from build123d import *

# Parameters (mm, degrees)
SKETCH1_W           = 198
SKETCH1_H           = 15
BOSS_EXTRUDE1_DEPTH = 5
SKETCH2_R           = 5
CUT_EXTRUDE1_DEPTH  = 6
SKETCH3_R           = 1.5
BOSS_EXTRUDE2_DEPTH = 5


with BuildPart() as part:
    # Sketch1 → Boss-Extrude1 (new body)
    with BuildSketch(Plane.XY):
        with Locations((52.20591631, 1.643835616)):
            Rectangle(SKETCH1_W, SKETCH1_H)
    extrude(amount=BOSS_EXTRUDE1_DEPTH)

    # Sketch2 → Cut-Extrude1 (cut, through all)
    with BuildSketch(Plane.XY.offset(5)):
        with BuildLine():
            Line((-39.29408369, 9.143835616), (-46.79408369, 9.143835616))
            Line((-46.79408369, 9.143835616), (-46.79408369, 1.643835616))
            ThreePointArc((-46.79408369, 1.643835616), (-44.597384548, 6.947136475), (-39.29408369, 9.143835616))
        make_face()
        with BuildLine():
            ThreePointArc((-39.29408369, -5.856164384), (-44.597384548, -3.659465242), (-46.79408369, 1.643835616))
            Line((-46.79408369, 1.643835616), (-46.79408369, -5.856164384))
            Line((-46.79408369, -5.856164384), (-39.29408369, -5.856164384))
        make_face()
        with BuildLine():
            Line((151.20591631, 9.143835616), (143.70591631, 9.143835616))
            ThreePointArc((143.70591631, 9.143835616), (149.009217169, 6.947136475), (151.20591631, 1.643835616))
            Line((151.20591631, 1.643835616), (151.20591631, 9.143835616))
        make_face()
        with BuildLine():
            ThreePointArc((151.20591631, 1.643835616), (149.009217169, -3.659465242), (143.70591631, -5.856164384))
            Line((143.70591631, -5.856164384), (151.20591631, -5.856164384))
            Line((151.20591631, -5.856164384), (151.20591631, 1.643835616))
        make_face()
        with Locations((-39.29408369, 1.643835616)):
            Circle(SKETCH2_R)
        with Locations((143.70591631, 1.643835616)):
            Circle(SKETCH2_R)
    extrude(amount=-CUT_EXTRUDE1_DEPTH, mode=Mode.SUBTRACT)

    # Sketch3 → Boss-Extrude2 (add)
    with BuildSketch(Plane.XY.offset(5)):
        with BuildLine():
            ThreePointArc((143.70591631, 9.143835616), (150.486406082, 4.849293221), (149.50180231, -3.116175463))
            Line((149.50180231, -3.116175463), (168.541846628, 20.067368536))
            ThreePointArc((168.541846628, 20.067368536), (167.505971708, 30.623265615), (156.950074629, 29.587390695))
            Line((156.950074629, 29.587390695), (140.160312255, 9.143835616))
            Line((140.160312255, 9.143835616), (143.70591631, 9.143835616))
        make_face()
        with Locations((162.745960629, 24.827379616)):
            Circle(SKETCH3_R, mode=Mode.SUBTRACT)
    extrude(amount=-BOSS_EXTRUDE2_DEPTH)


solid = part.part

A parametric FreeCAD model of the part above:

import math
import FreeCAD as App
import Part
import Sketcher

V = App.Vector
Q = App.Units.Quantity


def add_polygon(sketch, points):
    """Adds a closed chain of lines whose ends are joined by coincident constraints."""
    first, n = sketch.GeometryCount, len(points)
    for a, b in zip(points, points[1:] + points[:1]):
        sketch.addGeometry(Part.LineSegment(App.Vector(*a, 0), App.Vector(*b, 0)), False)
    for i in range(n):
        sketch.addConstraint(Sketcher.Constraint("Coincident", first + i, 2, first + (i + 1) % n, 1))

doc = App.newDocument("Part")
body = doc.addObject("PartDesign::Body", "Body")

# Sketch on XY plane
sketch1 = body.newObject("Sketcher::SketchObject", "Sketch")
sketch1.AttachmentSupport = (doc.getObject("XY_Plane"), [""])
sketch1.MapMode = "FlatFace"
add_polygon(sketch1, [(-46.794084, 9.143836), (-46.794084, -5.856164), (151.205916, -5.856164), (151.205916, 9.143836)])  # lines 0-3
sketch1.addConstraint([
    Sketcher.Constraint("Vertical", 0),
    Sketcher.Constraint("Horizontal", 1),
    Sketcher.Constraint("Vertical", 2),
    Sketcher.Constraint("Horizontal", 3),
    Sketcher.Constraint("DistanceX", 1, 1, 1, 2, Q("198 mm")),
    Sketcher.Constraint("DistanceY", 0, 2, 0, 1, Q("15 mm")),
    Sketcher.Constraint("DistanceX", 0, 2, -1, 1, Q("46.794084 mm")),
    Sketcher.Constraint("DistanceY", 0, 2, -1, 1, Q("5.856164 mm")),
])
pad1 = body.newObject("PartDesign::Pad", "Pad")
pad1.Profile = sketch1
pad1.Length = 5

# Sketch on XY plane
sketch2 = body.newObject("Sketcher::SketchObject", "Sketch001")
sketch2.AttachmentSupport = (doc.getObject("XY_Plane"), [""])
sketch2.MapMode = "FlatFace"
sketch2.AttachmentOffset = App.Placement(V(0, 0, 5), App.Rotation())
sketch2.addGeometry([
    Part.LineSegment(V(-39.294084, 9.143836, 0), V(-46.794084, 9.143836, 0)),  # 0
    Part.LineSegment(V(-46.794084, 9.143836, 0), V(-46.794084, 1.643836, 0)),  # 1
    Part.ArcOfCircle(Part.Circle(V(-39.294084, 1.643836, 0), V(0, 0, 1), 7.5), math.radians(90), math.radians(180)),  # 2
    Part.ArcOfCircle(Part.Circle(V(-39.294084, 1.643836, 0), V(0, 0, 1), 7.5), math.radians(-180), math.radians(-90)),  # 3
    Part.LineSegment(V(-46.794084, 1.643836, 0), V(-46.794084, -5.856164, 0)),  # 4
    Part.LineSegment(V(-46.794084, -5.856164, 0), V(-39.294084, -5.856164, 0)),  # 5
    Part.LineSegment(V(151.205916, 9.143836, 0), V(143.705916, 9.143836, 0)),  # 6
    Part.ArcOfCircle(Part.Circle(V(143.705916, 1.643836, 0), V(0, 0, 1), 7.5), math.radians(0), math.radians(90)),  # 7
    Part.LineSegment(V(151.205916, 1.643836, 0), V(151.205916, 9.143836, 0)),  # 8
    Part.ArcOfCircle(Part.Circle(V(143.705916, 1.643836, 0), V(0, 0, 1), 7.5), math.radians(-90), math.radians(0)),  # 9
    Part.LineSegment(V(143.705916, -5.856164, 0), V(151.205916, -5.856164, 0)),  # 10
    Part.LineSegment(V(151.205916, -5.856164, 0), V(151.205916, 1.643836, 0)),  # 11
    Part.Circle(V(-39.294084, 1.643836, 0), V(0, 0, 1), 5),  # 12
    Part.Circle(V(143.705916, 1.643836, 0), V(0, 0, 1), 5),  # 13
], False)
sketch2.addConstraint([
    Sketcher.Constraint("Coincident", 0, 2, 1, 1),
    Sketcher.Constraint("Tangent", 1, 2, 2, 2),
    Sketcher.Constraint("Tangent", 2, 1, 0, 1),
    Sketcher.Constraint("Tangent", 3, 1, 4, 1),
    Sketcher.Constraint("Coincident", 4, 2, 5, 1),
    Sketcher.Constraint("Tangent", 5, 2, 3, 2),
    Sketcher.Constraint("Tangent", 6, 2, 7, 2),
    Sketcher.Constraint("Tangent", 7, 1, 8, 1),
    Sketcher.Constraint("Coincident", 8, 2, 6, 1),
    Sketcher.Constraint("Tangent", 9, 1, 10, 1),
    Sketcher.Constraint("Coincident", 10, 2, 11, 1),
    Sketcher.Constraint("Tangent", 11, 2, 9, 2),
    Sketcher.Constraint("Horizontal", 0),
    Sketcher.Constraint("Vertical", 1),
    Sketcher.Constraint("Vertical", 4),
    Sketcher.Constraint("Horizontal", 5),
    Sketcher.Constraint("Horizontal", 6),
    Sketcher.Constraint("Vertical", 8),
    Sketcher.Constraint("Horizontal", 10),
    Sketcher.Constraint("Vertical", 11),
    Sketcher.Constraint("Coincident", 3, 3, 2, 3),
    Sketcher.Constraint("Coincident", 9, 3, 7, 3),
    Sketcher.Constraint("Coincident", 12, 3, 2, 3),
    Sketcher.Constraint("Coincident", 13, 3, 7, 3),
    Sketcher.Constraint("Equal", 2, 3),
    Sketcher.Constraint("Equal", 3, 7),
    Sketcher.Constraint("Equal", 7, 9),
    Sketcher.Constraint("Equal", 12, 13),
    Sketcher.Constraint("Horizontal", 3, 3, 7, 3),
    Sketcher.Constraint("Diameter", 12, Q("10 mm")),
    Sketcher.Constraint("Radius", 2, Q("7.5 mm")),
    Sketcher.Constraint("DistanceX", 3, 3, 7, 3, Q("183 mm")),
    Sketcher.Constraint("DistanceX", 2, 3, -1, 1, Q("39.294084 mm")),
    Sketcher.Constraint("DistanceY", -1, 1, 2, 3, Q("1.643836 mm")),
])
pocket1 = body.newObject("PartDesign::Pocket", "Pocket")
pocket1.Profile = sketch2
pocket1.Type = "ThroughAll"

# Sketch on XY plane
sketch3 = body.newObject("Sketcher::SketchObject", "Sketch002")
sketch3.AttachmentSupport = (doc.getObject("XY_Plane"), [""])
sketch3.MapMode = "FlatFace"
sketch3.AttachmentOffset = App.Placement(V(0, 0, 5), App.Rotation())
sketch3.addGeometry([
    Part.ArcOfCircle(Part.Circle(V(143.705916, 1.643836, 0), V(0, 0, 1), 7.5), math.radians(-39.395376), math.radians(90)),  # 0
    Part.LineSegment(V(149.501802, -3.116175, 0), V(168.541847, 20.067369, 0)),  # 1
    Part.ArcOfCircle(Part.Circle(V(162.745961, 24.82738, 0), V(0, 0, 1), 7.5), math.radians(-39.395376), math.radians(140.604624)),  # 2
    Part.LineSegment(V(156.950075, 29.587391, 0), V(140.160312, 9.143836, 0)),  # 3
    Part.LineSegment(V(140.160312, 9.143836, 0), V(143.705916, 9.143836, 0)),  # 4
    Part.Circle(V(162.745961, 24.82738, 0), V(0, 0, 1), 1.5),  # 5
], False)
sketch3.addConstraint([
    Sketcher.Constraint("Tangent", 0, 1, 1, 1),
    Sketcher.Constraint("Tangent", 1, 2, 2, 1),
    Sketcher.Constraint("Tangent", 2, 2, 3, 1),
    Sketcher.Constraint("Coincident", 3, 2, 4, 1),
    Sketcher.Constraint("Tangent", 4, 2, 0, 2),
    Sketcher.Constraint("Horizontal", 4),
    Sketcher.Constraint("Coincident", 5, 3, 2, 3),
    Sketcher.Constraint("Equal", 0, 2),
    Sketcher.Constraint("Parallel", 1, 3),
    Sketcher.Constraint("Diameter", 5, Q("3 mm")),
    Sketcher.Constraint("Radius", 0, Q("7.5 mm")),
    Sketcher.Constraint("Distance", 1, Q("30 mm")),
    Sketcher.Constraint("DistanceX", 4, 1, 4, 2, Q("3.545604 mm")),
    Sketcher.Constraint("DistanceX", -1, 1, 2, 3, Q("162.745961 mm")),
    Sketcher.Constraint("DistanceY", -1, 1, 2, 3, Q("24.82738 mm")),
])
pad2 = body.newObject("PartDesign::Pad", "Pad001")
pad2.Profile = sketch3
pad2.Length = 5
pad2.Reversed = True

doc.recompute()
